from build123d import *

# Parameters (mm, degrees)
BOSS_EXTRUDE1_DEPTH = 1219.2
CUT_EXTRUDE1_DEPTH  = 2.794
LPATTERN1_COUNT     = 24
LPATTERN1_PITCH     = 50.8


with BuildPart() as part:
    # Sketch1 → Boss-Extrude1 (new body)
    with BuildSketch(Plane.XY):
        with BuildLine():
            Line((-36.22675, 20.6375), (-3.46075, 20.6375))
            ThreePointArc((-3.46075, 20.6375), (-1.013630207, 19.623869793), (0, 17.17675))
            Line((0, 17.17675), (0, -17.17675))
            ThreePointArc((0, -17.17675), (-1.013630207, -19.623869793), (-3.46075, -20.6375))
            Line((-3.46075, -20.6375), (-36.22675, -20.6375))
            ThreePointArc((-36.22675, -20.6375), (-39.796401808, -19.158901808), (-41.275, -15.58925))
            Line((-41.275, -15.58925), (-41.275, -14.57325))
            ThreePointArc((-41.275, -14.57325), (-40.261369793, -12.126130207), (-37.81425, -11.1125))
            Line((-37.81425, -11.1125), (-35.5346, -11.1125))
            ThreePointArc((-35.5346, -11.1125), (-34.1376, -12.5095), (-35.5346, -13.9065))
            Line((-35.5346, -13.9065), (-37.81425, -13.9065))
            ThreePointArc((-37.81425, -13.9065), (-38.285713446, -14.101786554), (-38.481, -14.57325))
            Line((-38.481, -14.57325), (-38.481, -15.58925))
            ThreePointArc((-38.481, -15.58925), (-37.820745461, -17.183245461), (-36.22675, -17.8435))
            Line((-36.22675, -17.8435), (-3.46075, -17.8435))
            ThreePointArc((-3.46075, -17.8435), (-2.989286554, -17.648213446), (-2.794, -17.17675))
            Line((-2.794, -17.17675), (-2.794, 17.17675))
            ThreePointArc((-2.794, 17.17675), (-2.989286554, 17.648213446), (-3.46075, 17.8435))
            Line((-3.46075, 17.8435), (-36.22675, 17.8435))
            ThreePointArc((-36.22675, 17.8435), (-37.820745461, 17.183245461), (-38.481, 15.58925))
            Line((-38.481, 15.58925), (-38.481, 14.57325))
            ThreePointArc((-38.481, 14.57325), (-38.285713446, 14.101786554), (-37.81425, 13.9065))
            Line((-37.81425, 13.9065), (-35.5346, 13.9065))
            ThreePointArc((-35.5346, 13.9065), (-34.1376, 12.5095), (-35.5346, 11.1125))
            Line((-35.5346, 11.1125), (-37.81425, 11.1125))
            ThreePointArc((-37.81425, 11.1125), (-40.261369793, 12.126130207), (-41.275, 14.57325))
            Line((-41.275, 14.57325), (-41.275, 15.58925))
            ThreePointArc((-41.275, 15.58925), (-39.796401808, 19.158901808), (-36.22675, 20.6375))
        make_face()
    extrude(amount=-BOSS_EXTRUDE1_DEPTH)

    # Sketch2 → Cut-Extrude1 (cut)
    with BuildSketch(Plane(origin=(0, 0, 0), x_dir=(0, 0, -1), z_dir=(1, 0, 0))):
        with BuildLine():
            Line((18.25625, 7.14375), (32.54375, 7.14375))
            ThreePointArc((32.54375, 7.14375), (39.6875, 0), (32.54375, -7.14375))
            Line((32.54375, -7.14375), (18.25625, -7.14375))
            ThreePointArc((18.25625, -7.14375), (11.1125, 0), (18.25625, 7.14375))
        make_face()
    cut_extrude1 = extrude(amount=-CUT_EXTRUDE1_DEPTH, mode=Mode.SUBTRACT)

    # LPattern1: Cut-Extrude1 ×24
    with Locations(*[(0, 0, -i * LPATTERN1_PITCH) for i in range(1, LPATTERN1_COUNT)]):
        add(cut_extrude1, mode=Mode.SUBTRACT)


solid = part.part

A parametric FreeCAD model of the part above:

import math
import FreeCAD as App
import Part
import Sketcher
Q = App.Units.Quantity

doc = App.newDocument("Part")
params = doc.addObject("Spreadsheet::Sheet", "Params")
for row, (alias, value) in enumerate([
    ("sketch1_radius", "0.055 in"),
    ("sketch1_width", "1.29 in"),
    ("sketch1_height", "0.04 in"),
    ("pad1_length", "48 in"),
    ("sketch2_radius", "0.28125 in"),
    ("sketch2_height", "0.5625 in"),
    ("pocket1_length", "0.11 in"),
    ("linearpattern_pitch", "2 in"),
], start=1):
    params.set(f"A{row}", alias)
    params.set(f"B{row}", "=" + value)
    params.setAlias(f"B{row}", alias)

body = doc.addObject("PartDesign::Body", "Body")

# Sketch on XY plane
sketch1 = body.newObject("Sketcher::SketchObject", "Sketch")
sketch1.AttachmentSupport = (doc.getObject("XY_Plane"), [""])
sketch1.MapMode = "FlatFace"
sketch1.addGeometry([
    Part.LineSegment(App.Vector(-3.5, 20.6, 0), App.Vector(-36.2, 20.6, 0)),  # 0
    Part.ArcOfCircle(Part.Circle(App.Vector(-36.2, 15.6, 0), App.Vector(0, 0, 1), 5), math.radians(90), math.radians(180)),  # 1
    Part.LineSegment(App.Vector(-41.3, 15.6, 0), App.Vector(-41.3, 14.6, 0)),  # 2
    Part.ArcOfCircle(Part.Circle(App.Vector(-37.8, 14.6, 0), App.Vector(0, 0, 1), 3.5), math.radians(180), math.radians(270)),  # 3
    Part.LineSegment(App.Vector(-37.8, 11.1, 0), App.Vector(-35.5, 11.1, 0)),  # 4
    Part.ArcOfCircle(Part.Circle(App.Vector(-35.5, 12.5, 0), App.Vector(0, 0, 1), 1.4), math.radians(-90), math.radians(90)),  # 5
    Part.LineSegment(App.Vector(-35.5, 13.9, 0), App.Vector(-37.8, 13.9, 0)),  # 6
    Part.ArcOfCircle(Part.Circle(App.Vector(-37.8, 14.6, 0), App.Vector(0, 0, 1), 0.7), math.radians(-180), math.radians(-90)),  # 7
    Part.LineSegment(App.Vector(-38.5, 14.6, 0), App.Vector(-38.5, 15.6, 0)),  # 8
    Part.ArcOfCircle(Part.Circle(App.Vector(-36.2, 15.6, 0), App.Vector(0, 0, 1), 2.3), math.radians(90), math.radians(180)),  # 9
    Part.LineSegment(App.Vector(-36.2, 17.8, 0), App.Vector(-3.5, 17.8, 0)),  # 10
    Part.ArcOfCircle(Part.Circle(App.Vector(-3.5, 17.2, 0), App.Vector(0, 0, 1), 0.7), math.radians(0), math.radians(90)),  # 11
    Part.LineSegment(App.Vector(-2.8, 17.2, 0), App.Vector(-2.8, -17.2, 0)),  # 12
    Part.ArcOfCircle(Part.Circle(App.Vector(-3.5, -17.2, 0), App.Vector(0, 0, 1), 0.7), math.radians(-90), math.radians(0)),  # 13
    Part.LineSegment(App.Vector(-3.5, -17.8, 0), App.Vector(-36.2, -17.8, 0)),  # 14
    Part.ArcOfCircle(Part.Circle(App.Vector(-36.2, -15.6, 0), App.Vector(0, 0, 1), 2.3), math.radians(-180), math.radians(-90)),  # 15
    Part.LineSegment(App.Vector(-38.5, -15.6, 0), App.Vector(-38.5, -14.6, 0)),  # 16
    Part.ArcOfCircle(Part.Circle(App.Vector(-37.8, -14.6, 0), App.Vector(0, 0, 1), 0.7), math.radians(90), math.radians(180)),  # 17
    Part.LineSegment(App.Vector(-37.8, -13.9, 0), App.Vector(-35.5, -13.9, 0)),  # 18
    Part.ArcOfCircle(Part.Circle(App.Vector(-35.5, -12.5, 0), App.Vector(0, 0, 1), 1.4), math.radians(-90), math.radians(90)),  # 19
    Part.LineSegment(App.Vector(-35.5, -11.1, 0), App.Vector(-37.8, -11.1, 0)),  # 20
    Part.ArcOfCircle(Part.Circle(App.Vector(-37.8, -14.6, 0), App.Vector(0, 0, 1), 3.5), math.radians(90), math.radians(180)),  # 21
    Part.LineSegment(App.Vector(-41.3, -14.6, 0), App.Vector(-41.3, -15.6, 0)),  # 22
    Part.ArcOfCircle(Part.Circle(App.Vector(-36.2, -15.6, 0), App.Vector(0, 0, 1), 5), math.radians(180), math.radians(270)),  # 23
    Part.LineSegment(App.Vector(-36.2, -20.6, 0), App.Vector(-3.5, -20.6, 0)),  # 24
    Part.ArcOfCircle(Part.Circle(App.Vector(-3.5, -17.2, 0), App.Vector(0, 0, 1), 3.5), math.radians(-90), math.radians(0)),  # 25
    Part.LineSegment(App.Vector(0, -17.2, 0), App.Vector(0, 17.2, 0)),  # 26
    Part.ArcOfCircle(Part.Circle(App.Vector(-3.5, 17.2, 0), App.Vector(0, 0, 1), 3.5), math.radians(0), math.radians(90)),  # 27
], False)
sketch1.addConstraint([
    Sketcher.Constraint("Tangent", 0, 2, 1, 1),
    Sketcher.Constraint("Tangent", 1, 2, 2, 1),
    Sketcher.Constraint("Tangent", 2, 2, 3, 1),
    Sketcher.Constraint("Tangent", 3, 2, 4, 1),
    Sketcher.Constraint("Tangent", 4, 2, 5, 1),
    Sketcher.Constraint("Tangent", 5, 2, 6, 1),
    Sketcher.Constraint("Tangent", 6, 2, 7, 2),
    Sketcher.Constraint("Tangent", 7, 1, 8, 1),
    Sketcher.Constraint("Tangent", 8, 2, 9, 2),
    Sketcher.Constraint("Tangent", 9, 1, 10, 1),
    Sketcher.Constraint("Tangent", 10, 2, 11, 2),
    Sketcher.Constraint("Tangent", 11, 1, 12, 1),
    Sketcher.Constraint("Tangent", 12, 2, 13, 2),
    Sketcher.Constraint("Tangent", 13, 1, 14, 1),
    Sketcher.Constraint("Tangent", 14, 2, 15, 2),
    Sketcher.Constraint("Tangent", 15, 1, 16, 1),
    Sketcher.Constraint("Tangent", 16, 2, 17, 2),
    Sketcher.Constraint("Tangent", 17, 1, 18, 1),
    Sketcher.Constraint("Tangent", 18, 2, 19, 1),
    Sketcher.Constraint("Tangent", 19, 2, 20, 1),
    Sketcher.Constraint("Tangent", 20, 2, 21, 1),
    Sketcher.Constraint("Tangent", 21, 2, 22, 1),
    Sketcher.Constraint("Tangent", 22, 2, 23, 1),
    Sketcher.Constraint("Tangent", 23, 2, 24, 1),
    Sketcher.Constraint("Tangent", 24, 2, 25, 1),
    Sketcher.Constraint("Tangent", 25, 2, 26, 1),
    Sketcher.Constraint("Tangent", 26, 2, 27, 1),
    Sketcher.Constraint("Tangent", 27, 2, 0, 1),
    Sketcher.Constraint("Horizontal", 0),
    Sketcher.Constraint("Vertical", 2),
    Sketcher.Constraint("Horizontal", 4),
    Sketcher.Constraint("Horizontal", 6),
    Sketcher.Constraint("Vertical", 8),
    Sketcher.Constraint("Horizontal", 10),
    Sketcher.Constraint("Vertical", 12),
    Sketcher.Constraint("Horizontal", 14),
    Sketcher.Constraint("Vertical", 16),
    Sketcher.Constraint("Horizontal", 18),
    Sketcher.Constraint("Horizontal", 20),
    Sketcher.Constraint("Vertical", 22),
    Sketcher.Constraint("Horizontal", 24),
    Sketcher.Constraint("Vertical", 26),
    Sketcher.Constraint("Coincident", 7, 3, 3, 3),
    Sketcher.Constraint("Coincident", 9, 3, 1, 3),
    Sketcher.Constraint("Coincident", 21, 3, 17, 3),
    Sketcher.Constraint("Coincident", 23, 3, 15, 3),
    Sketcher.Constraint("Coincident", 25, 3, 13, 3),
    Sketcher.Constraint("Coincident", 27, 3, 11, 3),
    Sketcher.Constraint("Equal", 7, 11),
    Sketcher.Constraint("Equal", 11, 13),
    Sketcher.Constraint("Equal", 9, 15),
    Sketcher.Constraint("Equal", 13, 17),
    Sketcher.Constraint("Symmetric", 25, 2, 26, 2, -1, 1),
    Sketcher.Constraint("Symmetric", 3, 3, 17, 3, -1),
    Sketcher.Constraint("Vertical", 5, 3, 19, 3),
    Sketcher.Constraint("Radius", 5, Q("0.055 in")),
    Sketcher.Constraint("DistanceX", 0, 2, 0, 1, Q("1.29 in")),
    Sketcher.Constraint("DistanceY", 2, 2, 2, 1, Q("0.04 in")),
    Sketcher.Constraint("DistanceY", 13, 3, 9, 3, Q("1.29 in")),
    Sketcher.Constraint("DistanceY", 5, 3, 0, 2, Q("0.32 in")),
    Sketcher.Constraint("DistanceY", 12, 2, 12, 1, Q("1.3525 in")),
    Sketcher.Constraint("DistanceX", 5, 3, -1, 1, Q("1.399 in")),
])
sketch1.setExpression("Constraints[55]", "Params.sketch1_radius")
sketch1.setExpression("Constraints[56]", "Params.sketch1_width")
sketch1.setExpression("Constraints[57]", "Params.sketch1_height")
pad1 = body.newObject("PartDesign::Pad", "Pad")
pad1.Profile = sketch1
pad1.setExpression("Length", "Params.pad1_length")
pad1.Reversed = True

# Sketch on YZ plane
sketch2 = body.newObject("Sketcher::SketchObject", "Sketch001")
sketch2.AttachmentSupport = (doc.getObject("YZ_Plane"), [""])
sketch2.MapMode = "FlatFace"
sketch2.addGeometry([
    Part.LineSegment(App.Vector(7, -33, 0), App.Vector(7, -18, 0)),
    Part.ArcOfCircle(Part.Circle(App.Vector(0, -18, 0), App.Vector(0, 0, 1), 7), math.radians(0), math.radians(180)),
    Part.LineSegment(App.Vector(-7, -18, 0), App.Vector(-7, -33, 0)),
    Part.ArcOfCircle(Part.Circle(App.Vector(0, -33, 0), App.Vector(0, 0, 1), 7), math.radians(180), math.radians(360)),
], False)
sketch2.addConstraint([
    Sketcher.Constraint("Tangent", 0, 2, 1, 1),
    Sketcher.Constraint("Tangent", 1, 2, 2, 1),
    Sketcher.Constraint("Tangent", 2, 2, 3, 1),
    Sketcher.Constraint("Tangent", 3, 2, 0, 1),
    Sketcher.Constraint("Vertical", 0),
    Sketcher.Constraint("Vertical", 2),
    Sketcher.Constraint("PointOnObject", 1, 3, -2),
    Sketcher.Constraint("Radius", 1, Q("0.28125 in")),
    Sketcher.Constraint("DistanceY", 0, 1, 0, 2, Q("0.5625 in")),
    Sketcher.Constraint("DistanceY", 1, 3, -1, 1, Q("0.71875 in")),
])
sketch2.setExpression("Constraints[7]", "Params.sketch2_radius")
sketch2.setExpression("Constraints[8]", "Params.sketch2_height")
pocket1 = body.newObject("PartDesign::Pocket", "Pocket")
pocket1.Profile = sketch2
pocket1.setExpression("Length", "Params.pocket1_length")
doc.recompute()

linearpattern = body.newObject("PartDesign::LinearPattern", "LinearPattern")
linearpattern.Originals = [pocket1]
linearpattern.Direction = (doc.getObject("Z_Axis"), [""])
linearpattern.Mode = "offset"
linearpattern.setExpression("Offset", "Params.linearpattern_pitch")
linearpattern.Occurrences = 24
linearpattern.Reversed = True
body.Tip = linearpattern

doc.recompute()
